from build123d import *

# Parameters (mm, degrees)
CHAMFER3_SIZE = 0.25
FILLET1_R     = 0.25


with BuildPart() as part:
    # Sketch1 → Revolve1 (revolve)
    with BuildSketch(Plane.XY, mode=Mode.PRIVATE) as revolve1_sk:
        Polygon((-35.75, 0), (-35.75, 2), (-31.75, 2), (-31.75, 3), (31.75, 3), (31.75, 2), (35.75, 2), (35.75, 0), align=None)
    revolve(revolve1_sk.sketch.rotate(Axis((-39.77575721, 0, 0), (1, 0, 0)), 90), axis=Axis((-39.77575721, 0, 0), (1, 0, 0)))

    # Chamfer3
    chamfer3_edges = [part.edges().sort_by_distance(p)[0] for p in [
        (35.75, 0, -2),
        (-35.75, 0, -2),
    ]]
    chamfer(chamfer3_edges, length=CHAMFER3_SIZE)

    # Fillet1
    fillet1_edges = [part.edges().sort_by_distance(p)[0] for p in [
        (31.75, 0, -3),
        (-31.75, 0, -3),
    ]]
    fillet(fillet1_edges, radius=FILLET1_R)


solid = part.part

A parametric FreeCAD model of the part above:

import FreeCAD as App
import Part
import Sketcher

V = App.Vector


def edges_at(feature, points):
    """Names of the edges that pass closest to the given points."""
    edges = feature.Shape.Edges
    near = lambda p: min(range(len(edges)), key=lambda i: edges[i].distToShape(Part.Vertex(*p))[0])
    return sorted({f"Edge{near(p) + 1}" for p in points})


def add_polygon(sketch, points):
    """Adds a closed chain of lines whose ends are joined by coincident constraints."""
    first, n = sketch.GeometryCount, len(points)
    for a, b in zip(points, points[1:] + points[:1]):
        sketch.addGeometry(Part.LineSegment(App.Vector(*a, 0), App.Vector(*b, 0)), False)
    for i in range(n):
        sketch.addConstraint(Sketcher.Constraint("Coincident", first + i, 2, first + (i + 1) % n, 1))

doc = App.newDocument("Part")
body = doc.addObject("PartDesign::Body", "Body")

sketch1 = body.newObject("Sketcher::SketchObject", "Sketch")
sketch1.AttachmentSupport = (doc.getObject("XY_Plane"), [""])
sketch1.MapMode = "FlatFace"
add_polygon(sketch1, [(-35.8, 2), (-35.8, 0), (35.8, 0), (35.8, 2), (31.8, 2), (31.8, 3), (-31.8, 3), (-31.8, 2)])
sketch1.addConstraint([
    Sketcher.Constraint("Vertical", 0),
    Sketcher.Constraint("Horizontal", 1),
    Sketcher.Constraint("Vertical", 2),
    Sketcher.Constraint("Horizontal", 3),
    Sketcher.Constraint("Vertical", 4),
    Sketcher.Constraint("Horizontal", 5),
    Sketcher.Constraint("Vertical", 6),
    Sketcher.Constraint("Horizontal", 7),
    Sketcher.Constraint("Symmetric", 0, 2, 1, 2, -1, 1),
    Sketcher.Constraint("Symmetric", 3, 2, 6, 2, -2),
    Sketcher.Constraint("DistanceX", 3, 2, 3, 1, 4.0),
    Sketcher.Constraint("DistanceY", 0, 2, 0, 1, 2.0),
    Sketcher.Constraint("DistanceY", 4, 1, 4, 2, 1.0),
    Sketcher.Constraint("DistanceX", 1, 1, 1, 2, 71.5),
])
revolution = body.newObject("PartDesign::Revolution", "Revolution")
revolution.Profile = sketch1
revolution.ReferenceAxis = (sketch1, ["H_Axis"])
revolution.Angle = 360
doc.recompute()

chamfer = body.newObject("PartDesign::Chamfer", "Chamfer")
chamfer.Base = (revolution, edges_at(revolution, [(35.75, 0, -2), (-35.75, 0, -2)]))
chamfer.Size = 0.25
doc.recompute()

fillet = body.newObject("PartDesign::Fillet", "Fillet")
fillet.Base = (chamfer, edges_at(chamfer, [(31.75, 0, -3), (-31.75, 0, -3)]))
fillet.Radius = 0.25

doc.recompute()
